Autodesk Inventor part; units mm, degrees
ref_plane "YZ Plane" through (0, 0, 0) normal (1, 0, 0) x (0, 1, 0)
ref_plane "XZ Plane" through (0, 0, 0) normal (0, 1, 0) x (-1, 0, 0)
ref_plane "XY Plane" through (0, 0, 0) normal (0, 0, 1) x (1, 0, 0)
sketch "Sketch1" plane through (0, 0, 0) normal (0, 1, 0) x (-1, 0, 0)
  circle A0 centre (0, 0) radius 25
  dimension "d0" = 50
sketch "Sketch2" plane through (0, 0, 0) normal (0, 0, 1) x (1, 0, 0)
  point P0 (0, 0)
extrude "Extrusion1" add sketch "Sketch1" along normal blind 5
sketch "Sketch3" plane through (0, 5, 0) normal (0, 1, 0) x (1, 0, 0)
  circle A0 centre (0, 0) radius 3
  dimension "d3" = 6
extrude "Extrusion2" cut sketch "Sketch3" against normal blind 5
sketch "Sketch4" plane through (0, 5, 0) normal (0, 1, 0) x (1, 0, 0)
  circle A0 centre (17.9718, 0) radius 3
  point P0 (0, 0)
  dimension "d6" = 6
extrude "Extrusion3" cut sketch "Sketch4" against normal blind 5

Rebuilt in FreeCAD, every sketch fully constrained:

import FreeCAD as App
import Part
import Sketcher
Q = App.Units.Quantity

doc = App.newDocument("Part")
body = doc.addObject("PartDesign::Body", "Body")

sketch1 = body.newObject("Sketcher::SketchObject", "Sketch")
sketch1.AttachmentSupport = (doc.getObject("XZ_Plane"), [""])
sketch1.MapMode = "FlatFace"
sketch1.addGeometry(Part.Circle(App.Vector(0, 0, 0), App.Vector(0, 0, 1), 25), False)
sketch1.addConstraint([
    Sketcher.Constraint("Coincident", 0, 3, -1, 1),
    Sketcher.Constraint("Diameter", 0, Q("50 mm")),
])
pad1 = body.newObject("PartDesign::Pad", "Pad")
pad1.Profile = sketch1
pad1.Length = 5
pad1.Reversed = True

sketch2 = body.newObject("Sketcher::SketchObject", "Sketch001")
sketch2.AttachmentSupport = (doc.getObject("XZ_Plane"), [""])
sketch2.MapMode = "FlatFace"
sketch2.AttachmentOffset = App.Placement(App.Vector(0, 0, -5), App.Rotation())
sketch2.addGeometry(Part.Circle(App.Vector(0, 0, 0), App.Vector(0, 0, 1), 3), False)
sketch2.addConstraint([
    Sketcher.Constraint("Coincident", 0, 3, -1, 1),
    Sketcher.Constraint("Diameter", 0, Q("6 mm")),
])
pocket1 = body.newObject("PartDesign::Pocket", "Pocket")
pocket1.Profile = sketch2
pocket1.Length = 5
pocket1.Reversed = True

sketch3 = body.newObject("Sketcher::SketchObject", "Sketch002")
sketch3.AttachmentSupport = (doc.getObject("XZ_Plane"), [""])
sketch3.MapMode = "FlatFace"
sketch3.AttachmentOffset = App.Placement(App.Vector(0, 0, -5), App.Rotation())
sketch3.addGeometry(Part.Circle(App.Vector(17.9718, 0, 0), App.Vector(0, 0, 1), 3), False)
sketch3.addConstraint([
    Sketcher.Constraint("PointOnObject", 0, 3, -1),
    Sketcher.Constraint("Diameter", 0, Q("6 mm")),
    Sketcher.Constraint("DistanceX", -1, 1, 0, 3, Q("17.9718 mm")),
])
pocket2 = body.newObject("PartDesign::Pocket", "Pocket001")
pocket2.Profile = sketch3
pocket2.Length = 5
pocket2.Reversed = True

doc.recompute()
